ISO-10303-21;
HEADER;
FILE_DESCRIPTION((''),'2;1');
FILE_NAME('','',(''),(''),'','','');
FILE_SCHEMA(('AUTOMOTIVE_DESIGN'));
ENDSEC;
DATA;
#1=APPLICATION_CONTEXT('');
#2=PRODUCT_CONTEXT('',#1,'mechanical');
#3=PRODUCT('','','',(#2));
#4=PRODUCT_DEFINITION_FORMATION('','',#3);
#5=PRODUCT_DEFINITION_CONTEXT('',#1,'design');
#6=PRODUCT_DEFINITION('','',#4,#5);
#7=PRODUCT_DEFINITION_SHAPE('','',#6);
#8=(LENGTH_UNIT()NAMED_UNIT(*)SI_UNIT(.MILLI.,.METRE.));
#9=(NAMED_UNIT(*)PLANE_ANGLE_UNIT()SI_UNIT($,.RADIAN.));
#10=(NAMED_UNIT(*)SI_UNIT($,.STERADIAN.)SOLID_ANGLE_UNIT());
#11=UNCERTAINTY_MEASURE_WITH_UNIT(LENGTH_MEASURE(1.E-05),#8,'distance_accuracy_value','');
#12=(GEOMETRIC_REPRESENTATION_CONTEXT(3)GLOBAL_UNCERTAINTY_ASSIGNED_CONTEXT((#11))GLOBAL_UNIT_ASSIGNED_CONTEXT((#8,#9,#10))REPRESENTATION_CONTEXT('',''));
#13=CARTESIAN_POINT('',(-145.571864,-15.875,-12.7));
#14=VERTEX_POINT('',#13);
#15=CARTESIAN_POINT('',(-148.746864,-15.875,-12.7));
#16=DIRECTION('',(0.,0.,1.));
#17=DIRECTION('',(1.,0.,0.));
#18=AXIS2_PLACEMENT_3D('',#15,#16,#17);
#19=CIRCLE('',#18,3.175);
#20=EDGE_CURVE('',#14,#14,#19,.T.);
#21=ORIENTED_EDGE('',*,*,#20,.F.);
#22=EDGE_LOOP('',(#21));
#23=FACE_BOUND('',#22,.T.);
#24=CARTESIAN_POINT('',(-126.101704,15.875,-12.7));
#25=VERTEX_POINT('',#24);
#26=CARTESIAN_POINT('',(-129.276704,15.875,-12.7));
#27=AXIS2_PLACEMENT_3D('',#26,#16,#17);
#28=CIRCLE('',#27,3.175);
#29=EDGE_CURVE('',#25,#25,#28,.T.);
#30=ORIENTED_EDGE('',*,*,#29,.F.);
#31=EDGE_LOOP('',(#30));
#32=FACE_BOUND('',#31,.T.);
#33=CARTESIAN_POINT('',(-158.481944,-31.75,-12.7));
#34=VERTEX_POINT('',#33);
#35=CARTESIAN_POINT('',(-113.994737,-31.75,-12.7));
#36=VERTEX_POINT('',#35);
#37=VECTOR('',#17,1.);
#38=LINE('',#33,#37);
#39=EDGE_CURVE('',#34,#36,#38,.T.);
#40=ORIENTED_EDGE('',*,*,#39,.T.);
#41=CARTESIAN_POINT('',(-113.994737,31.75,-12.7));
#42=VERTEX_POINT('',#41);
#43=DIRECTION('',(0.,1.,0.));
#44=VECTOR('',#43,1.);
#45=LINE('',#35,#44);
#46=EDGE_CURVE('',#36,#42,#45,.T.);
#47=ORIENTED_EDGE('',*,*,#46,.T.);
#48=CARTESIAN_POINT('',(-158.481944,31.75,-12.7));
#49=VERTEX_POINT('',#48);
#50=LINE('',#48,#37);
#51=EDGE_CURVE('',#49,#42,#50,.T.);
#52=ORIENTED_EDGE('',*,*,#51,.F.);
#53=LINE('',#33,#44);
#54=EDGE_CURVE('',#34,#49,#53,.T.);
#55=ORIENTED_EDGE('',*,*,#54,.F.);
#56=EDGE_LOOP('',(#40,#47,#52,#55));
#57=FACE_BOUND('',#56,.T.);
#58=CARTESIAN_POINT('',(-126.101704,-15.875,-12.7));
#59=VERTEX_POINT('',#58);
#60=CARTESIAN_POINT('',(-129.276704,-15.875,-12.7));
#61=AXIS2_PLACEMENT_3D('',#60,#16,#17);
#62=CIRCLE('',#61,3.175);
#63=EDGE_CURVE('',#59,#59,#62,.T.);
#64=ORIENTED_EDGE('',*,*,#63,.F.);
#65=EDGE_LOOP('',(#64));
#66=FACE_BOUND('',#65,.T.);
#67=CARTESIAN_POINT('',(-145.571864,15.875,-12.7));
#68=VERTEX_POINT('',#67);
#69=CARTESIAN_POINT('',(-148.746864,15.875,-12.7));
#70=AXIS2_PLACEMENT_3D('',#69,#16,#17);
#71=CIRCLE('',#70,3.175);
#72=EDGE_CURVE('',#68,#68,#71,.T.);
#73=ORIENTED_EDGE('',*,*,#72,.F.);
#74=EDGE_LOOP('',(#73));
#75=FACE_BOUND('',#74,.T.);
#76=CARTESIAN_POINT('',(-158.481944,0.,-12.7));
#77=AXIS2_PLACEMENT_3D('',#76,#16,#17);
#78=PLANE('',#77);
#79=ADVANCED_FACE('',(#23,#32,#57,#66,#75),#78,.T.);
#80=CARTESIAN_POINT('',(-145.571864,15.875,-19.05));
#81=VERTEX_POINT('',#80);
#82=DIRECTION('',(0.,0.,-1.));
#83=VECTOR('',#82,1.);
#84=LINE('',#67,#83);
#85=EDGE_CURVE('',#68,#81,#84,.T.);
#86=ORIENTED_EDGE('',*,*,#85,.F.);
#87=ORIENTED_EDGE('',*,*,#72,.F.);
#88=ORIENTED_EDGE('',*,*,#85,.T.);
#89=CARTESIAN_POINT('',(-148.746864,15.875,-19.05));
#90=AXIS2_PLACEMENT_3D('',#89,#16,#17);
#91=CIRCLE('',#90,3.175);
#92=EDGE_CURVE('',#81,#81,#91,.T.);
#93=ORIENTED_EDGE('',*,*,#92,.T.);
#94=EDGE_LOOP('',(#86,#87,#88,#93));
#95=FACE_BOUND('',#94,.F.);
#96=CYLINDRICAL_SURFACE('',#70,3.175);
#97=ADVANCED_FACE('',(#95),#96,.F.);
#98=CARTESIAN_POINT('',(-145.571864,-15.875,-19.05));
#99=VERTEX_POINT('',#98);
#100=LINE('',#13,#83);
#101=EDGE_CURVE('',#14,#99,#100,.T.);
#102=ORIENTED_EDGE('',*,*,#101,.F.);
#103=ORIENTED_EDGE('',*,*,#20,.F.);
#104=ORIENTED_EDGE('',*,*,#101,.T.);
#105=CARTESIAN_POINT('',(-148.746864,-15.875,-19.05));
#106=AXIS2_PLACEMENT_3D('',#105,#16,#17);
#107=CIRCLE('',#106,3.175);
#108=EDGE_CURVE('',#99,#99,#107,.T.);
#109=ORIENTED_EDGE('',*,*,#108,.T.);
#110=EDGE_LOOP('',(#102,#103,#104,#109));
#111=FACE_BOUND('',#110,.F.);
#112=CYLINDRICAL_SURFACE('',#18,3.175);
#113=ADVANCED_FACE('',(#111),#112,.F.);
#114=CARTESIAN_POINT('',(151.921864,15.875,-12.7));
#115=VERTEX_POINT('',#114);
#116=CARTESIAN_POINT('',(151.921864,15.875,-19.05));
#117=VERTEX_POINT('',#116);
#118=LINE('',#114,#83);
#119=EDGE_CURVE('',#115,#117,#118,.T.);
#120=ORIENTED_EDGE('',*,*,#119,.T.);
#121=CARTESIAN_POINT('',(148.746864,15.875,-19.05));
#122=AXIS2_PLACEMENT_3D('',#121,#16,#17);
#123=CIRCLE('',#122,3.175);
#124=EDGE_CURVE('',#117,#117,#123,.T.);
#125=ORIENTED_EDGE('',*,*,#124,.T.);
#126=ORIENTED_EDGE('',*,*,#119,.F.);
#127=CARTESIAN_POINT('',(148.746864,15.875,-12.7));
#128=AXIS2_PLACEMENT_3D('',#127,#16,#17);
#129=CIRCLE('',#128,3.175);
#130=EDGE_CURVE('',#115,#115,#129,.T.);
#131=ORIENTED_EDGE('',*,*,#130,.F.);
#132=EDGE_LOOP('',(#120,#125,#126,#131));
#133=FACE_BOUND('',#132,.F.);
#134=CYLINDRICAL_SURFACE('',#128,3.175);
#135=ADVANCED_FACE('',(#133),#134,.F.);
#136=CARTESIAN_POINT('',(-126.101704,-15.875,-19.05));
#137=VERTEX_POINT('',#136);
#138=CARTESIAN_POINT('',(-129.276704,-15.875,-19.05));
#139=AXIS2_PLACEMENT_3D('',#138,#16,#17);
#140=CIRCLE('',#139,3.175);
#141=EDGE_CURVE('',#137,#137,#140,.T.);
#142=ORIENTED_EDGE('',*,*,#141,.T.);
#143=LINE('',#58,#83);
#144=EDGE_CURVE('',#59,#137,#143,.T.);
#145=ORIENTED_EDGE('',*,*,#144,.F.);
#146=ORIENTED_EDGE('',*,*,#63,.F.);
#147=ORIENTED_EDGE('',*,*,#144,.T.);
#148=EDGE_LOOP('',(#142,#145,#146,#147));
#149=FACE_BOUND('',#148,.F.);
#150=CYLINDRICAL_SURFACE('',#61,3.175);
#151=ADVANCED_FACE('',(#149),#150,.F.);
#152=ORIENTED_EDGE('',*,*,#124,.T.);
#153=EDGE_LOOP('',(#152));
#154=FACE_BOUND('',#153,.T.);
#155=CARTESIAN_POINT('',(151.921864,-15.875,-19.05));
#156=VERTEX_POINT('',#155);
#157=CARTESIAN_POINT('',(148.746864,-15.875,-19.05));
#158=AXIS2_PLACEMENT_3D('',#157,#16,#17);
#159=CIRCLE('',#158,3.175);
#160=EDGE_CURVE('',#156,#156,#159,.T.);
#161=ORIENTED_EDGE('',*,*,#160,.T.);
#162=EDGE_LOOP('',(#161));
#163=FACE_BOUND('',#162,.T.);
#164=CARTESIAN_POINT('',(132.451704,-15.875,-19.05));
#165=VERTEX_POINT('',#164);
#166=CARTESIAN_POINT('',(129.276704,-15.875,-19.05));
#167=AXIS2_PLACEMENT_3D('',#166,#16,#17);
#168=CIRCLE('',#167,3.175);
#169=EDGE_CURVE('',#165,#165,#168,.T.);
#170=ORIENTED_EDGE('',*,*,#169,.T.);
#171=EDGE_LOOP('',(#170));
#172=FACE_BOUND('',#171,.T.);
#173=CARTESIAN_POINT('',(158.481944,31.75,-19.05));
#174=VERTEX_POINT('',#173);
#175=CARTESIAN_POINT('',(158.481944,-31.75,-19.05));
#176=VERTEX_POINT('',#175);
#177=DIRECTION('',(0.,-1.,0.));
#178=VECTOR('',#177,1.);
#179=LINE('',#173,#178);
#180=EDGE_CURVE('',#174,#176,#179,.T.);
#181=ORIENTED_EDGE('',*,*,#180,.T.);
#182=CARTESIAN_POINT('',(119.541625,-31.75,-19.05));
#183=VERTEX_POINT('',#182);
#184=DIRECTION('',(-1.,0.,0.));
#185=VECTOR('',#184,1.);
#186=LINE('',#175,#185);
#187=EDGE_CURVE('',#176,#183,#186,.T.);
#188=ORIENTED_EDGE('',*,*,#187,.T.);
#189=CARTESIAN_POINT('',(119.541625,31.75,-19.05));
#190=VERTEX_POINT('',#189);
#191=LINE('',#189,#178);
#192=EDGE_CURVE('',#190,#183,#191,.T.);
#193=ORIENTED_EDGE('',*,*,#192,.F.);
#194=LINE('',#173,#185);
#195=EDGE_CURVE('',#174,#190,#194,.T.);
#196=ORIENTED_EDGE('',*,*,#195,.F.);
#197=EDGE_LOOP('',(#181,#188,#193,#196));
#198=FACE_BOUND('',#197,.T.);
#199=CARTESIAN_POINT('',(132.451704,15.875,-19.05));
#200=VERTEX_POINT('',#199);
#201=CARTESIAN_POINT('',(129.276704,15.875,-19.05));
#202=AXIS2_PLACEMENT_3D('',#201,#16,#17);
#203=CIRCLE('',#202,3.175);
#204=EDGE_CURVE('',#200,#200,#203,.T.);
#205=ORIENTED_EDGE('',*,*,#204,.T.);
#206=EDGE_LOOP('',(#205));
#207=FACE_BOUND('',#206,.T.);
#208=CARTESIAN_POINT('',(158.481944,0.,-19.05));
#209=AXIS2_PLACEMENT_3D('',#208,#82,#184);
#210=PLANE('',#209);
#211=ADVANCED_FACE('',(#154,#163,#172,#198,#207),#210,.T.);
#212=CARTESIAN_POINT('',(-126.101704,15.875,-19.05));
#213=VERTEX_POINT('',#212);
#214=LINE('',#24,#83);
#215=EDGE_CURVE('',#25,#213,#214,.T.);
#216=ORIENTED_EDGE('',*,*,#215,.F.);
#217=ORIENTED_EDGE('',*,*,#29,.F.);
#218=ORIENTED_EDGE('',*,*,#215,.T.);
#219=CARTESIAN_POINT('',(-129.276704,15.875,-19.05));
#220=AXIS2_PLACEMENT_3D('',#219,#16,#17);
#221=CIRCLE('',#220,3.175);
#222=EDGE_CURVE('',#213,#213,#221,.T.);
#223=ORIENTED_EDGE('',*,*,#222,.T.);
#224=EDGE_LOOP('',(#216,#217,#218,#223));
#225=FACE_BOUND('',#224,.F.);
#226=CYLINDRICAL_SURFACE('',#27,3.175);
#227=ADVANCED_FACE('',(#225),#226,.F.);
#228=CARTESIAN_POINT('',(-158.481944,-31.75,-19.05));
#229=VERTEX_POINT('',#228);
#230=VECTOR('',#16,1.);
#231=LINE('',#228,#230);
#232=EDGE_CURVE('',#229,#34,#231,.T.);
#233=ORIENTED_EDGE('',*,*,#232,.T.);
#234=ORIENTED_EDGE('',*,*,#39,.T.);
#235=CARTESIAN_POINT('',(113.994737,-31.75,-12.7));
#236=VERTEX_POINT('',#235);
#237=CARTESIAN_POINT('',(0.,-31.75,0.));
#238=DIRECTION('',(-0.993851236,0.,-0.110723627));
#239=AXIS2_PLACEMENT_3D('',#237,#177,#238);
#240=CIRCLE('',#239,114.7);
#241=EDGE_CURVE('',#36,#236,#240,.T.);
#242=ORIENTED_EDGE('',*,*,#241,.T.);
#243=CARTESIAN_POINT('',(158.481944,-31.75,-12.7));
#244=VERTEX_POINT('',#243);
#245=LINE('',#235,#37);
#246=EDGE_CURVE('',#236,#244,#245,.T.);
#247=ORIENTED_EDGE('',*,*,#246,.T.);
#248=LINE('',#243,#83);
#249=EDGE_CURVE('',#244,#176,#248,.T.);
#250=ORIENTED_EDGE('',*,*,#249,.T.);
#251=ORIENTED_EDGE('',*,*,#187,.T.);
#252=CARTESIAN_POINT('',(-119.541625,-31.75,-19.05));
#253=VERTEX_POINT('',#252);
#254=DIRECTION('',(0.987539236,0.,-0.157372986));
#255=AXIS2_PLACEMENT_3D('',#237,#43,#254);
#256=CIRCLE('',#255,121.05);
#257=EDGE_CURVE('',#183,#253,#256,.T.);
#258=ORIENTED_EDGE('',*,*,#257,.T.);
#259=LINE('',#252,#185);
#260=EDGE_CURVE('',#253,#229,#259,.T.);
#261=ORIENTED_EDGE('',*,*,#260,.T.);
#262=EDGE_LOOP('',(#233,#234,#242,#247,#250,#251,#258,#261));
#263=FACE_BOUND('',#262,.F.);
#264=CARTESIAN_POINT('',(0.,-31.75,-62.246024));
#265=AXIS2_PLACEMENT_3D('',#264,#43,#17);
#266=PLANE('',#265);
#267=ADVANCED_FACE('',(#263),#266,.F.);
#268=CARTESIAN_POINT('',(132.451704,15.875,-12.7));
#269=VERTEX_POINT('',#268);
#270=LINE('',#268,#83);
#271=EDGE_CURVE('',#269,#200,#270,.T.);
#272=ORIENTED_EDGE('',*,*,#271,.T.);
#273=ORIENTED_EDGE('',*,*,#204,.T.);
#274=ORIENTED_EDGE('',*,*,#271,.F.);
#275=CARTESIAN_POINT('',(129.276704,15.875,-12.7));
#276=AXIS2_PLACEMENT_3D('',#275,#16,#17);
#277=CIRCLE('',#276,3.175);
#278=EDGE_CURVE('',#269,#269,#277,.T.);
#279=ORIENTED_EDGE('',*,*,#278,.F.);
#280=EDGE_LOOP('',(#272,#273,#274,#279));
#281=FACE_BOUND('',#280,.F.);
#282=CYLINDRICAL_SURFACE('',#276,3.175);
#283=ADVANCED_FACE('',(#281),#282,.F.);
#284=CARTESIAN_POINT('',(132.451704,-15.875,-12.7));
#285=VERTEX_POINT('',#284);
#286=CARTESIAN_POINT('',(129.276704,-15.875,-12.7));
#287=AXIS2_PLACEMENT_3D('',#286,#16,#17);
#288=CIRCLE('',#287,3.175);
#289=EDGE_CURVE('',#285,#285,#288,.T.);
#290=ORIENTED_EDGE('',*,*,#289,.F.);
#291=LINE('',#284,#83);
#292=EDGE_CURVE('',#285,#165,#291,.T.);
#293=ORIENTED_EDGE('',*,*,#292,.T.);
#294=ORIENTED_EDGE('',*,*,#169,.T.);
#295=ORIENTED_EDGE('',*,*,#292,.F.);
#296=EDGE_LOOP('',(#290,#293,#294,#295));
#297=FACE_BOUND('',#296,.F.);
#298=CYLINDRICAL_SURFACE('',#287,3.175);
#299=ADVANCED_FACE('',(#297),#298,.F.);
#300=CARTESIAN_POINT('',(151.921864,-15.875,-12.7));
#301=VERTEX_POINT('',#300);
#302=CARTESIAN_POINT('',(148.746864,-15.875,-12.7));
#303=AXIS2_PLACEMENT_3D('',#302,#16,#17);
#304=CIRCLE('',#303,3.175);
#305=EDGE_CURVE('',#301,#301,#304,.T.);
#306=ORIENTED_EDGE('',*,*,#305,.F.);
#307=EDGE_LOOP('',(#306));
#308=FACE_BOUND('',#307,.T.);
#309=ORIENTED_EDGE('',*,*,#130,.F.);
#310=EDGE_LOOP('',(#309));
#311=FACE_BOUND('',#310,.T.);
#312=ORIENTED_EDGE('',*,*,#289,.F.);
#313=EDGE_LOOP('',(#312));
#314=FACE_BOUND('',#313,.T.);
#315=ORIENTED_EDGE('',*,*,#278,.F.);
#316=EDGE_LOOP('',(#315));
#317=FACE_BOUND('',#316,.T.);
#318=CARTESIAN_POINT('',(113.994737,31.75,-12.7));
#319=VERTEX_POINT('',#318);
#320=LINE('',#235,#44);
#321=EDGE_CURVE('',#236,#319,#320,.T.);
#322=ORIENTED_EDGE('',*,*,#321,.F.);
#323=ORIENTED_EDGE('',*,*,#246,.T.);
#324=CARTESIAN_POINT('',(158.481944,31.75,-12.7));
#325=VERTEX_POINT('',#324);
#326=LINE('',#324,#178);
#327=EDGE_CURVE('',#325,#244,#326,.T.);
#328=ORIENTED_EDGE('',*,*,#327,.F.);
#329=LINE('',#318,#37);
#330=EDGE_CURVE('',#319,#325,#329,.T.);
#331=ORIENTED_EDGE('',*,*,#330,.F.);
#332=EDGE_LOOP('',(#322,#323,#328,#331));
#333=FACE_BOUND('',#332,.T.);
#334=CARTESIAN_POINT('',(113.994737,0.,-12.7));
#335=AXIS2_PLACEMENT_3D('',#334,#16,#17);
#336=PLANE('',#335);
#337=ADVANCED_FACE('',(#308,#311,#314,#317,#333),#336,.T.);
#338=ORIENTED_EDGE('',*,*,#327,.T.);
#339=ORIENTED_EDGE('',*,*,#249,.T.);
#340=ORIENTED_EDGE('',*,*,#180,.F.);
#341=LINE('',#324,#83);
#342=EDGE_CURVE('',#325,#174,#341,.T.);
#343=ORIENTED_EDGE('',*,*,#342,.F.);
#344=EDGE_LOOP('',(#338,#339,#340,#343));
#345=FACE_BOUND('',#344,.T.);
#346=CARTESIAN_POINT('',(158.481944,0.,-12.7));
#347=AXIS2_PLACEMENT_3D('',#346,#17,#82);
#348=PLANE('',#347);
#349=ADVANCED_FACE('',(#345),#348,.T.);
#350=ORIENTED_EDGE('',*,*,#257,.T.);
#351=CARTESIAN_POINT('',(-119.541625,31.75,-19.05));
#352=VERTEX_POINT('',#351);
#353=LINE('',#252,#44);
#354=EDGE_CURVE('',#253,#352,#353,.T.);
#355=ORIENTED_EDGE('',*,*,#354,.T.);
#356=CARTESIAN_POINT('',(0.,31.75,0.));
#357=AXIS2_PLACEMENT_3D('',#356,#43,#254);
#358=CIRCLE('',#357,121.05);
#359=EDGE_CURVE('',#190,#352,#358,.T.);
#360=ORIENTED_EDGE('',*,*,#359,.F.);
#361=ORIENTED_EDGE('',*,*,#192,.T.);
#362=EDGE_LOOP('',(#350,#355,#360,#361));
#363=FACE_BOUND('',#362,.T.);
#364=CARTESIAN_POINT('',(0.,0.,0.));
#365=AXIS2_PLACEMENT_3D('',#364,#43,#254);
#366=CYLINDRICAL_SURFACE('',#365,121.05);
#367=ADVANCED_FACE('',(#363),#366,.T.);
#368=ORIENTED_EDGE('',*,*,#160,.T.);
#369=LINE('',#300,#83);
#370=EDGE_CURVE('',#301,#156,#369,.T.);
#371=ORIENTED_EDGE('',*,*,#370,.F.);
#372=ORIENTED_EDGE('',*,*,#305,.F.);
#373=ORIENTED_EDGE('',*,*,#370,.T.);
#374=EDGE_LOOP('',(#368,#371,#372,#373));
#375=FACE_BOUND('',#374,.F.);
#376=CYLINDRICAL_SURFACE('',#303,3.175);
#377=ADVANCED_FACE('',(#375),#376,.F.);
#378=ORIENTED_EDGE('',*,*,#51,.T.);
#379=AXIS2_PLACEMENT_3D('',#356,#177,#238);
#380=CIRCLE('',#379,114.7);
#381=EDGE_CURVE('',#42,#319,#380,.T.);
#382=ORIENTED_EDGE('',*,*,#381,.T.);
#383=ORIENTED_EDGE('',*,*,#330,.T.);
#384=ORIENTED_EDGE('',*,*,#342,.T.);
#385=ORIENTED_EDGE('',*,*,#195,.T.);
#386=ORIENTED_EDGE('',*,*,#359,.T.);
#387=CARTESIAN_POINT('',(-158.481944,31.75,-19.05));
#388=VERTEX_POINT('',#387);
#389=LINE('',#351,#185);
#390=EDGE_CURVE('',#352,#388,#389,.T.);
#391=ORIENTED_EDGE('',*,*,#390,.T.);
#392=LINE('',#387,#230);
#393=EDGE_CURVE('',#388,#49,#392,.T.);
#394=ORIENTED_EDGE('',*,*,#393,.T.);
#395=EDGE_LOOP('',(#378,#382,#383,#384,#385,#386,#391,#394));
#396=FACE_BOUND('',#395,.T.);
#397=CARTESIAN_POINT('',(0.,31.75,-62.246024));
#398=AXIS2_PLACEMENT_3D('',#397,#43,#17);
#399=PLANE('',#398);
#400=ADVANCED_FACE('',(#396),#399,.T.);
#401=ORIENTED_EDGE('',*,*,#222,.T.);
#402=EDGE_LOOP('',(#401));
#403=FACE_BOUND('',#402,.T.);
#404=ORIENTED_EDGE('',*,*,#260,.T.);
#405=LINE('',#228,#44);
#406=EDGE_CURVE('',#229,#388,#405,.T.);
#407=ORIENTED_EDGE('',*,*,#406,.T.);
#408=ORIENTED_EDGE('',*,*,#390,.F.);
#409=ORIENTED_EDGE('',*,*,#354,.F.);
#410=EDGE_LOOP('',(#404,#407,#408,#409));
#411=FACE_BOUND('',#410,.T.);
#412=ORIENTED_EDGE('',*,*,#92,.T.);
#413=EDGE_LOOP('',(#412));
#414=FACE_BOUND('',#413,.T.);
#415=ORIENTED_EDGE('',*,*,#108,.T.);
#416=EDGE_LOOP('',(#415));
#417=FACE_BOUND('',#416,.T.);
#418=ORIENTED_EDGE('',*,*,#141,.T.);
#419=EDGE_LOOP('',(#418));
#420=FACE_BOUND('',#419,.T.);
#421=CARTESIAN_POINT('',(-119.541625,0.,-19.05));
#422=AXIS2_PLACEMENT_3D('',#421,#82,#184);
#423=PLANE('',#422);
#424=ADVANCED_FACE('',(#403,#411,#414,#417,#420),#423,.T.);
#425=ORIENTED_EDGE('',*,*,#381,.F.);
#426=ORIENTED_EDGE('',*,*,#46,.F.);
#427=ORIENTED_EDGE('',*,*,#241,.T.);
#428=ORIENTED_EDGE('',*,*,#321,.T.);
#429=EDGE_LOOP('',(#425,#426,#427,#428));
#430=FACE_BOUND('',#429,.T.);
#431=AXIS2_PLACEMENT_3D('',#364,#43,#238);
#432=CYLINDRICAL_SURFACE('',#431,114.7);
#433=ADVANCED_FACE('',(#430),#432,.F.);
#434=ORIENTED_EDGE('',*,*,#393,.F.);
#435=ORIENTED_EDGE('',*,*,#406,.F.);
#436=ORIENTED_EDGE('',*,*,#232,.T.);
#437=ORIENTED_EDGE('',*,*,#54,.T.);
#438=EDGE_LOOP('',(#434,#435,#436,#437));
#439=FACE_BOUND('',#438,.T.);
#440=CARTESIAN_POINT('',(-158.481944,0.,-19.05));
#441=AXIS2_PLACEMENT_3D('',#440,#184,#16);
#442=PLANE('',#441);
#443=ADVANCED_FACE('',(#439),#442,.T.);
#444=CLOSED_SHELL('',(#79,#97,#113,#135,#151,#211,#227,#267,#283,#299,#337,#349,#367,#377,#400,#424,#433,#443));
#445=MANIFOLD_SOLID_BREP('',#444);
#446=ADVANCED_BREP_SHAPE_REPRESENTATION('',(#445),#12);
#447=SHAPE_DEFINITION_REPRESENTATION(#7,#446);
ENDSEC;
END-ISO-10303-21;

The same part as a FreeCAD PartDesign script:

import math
import FreeCAD as App
import Part
import Sketcher
Q = App.Units.Quantity

doc = App.newDocument("Part")
body = doc.addObject("PartDesign::Body", "Body")

sketch1 = body.newObject("Sketcher::SketchObject", "Sketch")
sketch1.AttachmentSupport = (doc.getObject("XZ_Plane"), [""])
sketch1.MapMode = "FlatFace"
sketch1.addGeometry(Part.ArcOfCircle(Part.Circle(App.Vector(0, 0, 0), App.Vector(0, 0, 1), 121), math.radians(-171), math.radians(-9)), False)
sketch1.addGeometry(Part.LineSegment(App.Vector(-120, -19, 0), App.Vector(-158, -19, 0)), False)
sketch1.addGeometry(Part.LineSegment(App.Vector(-158, -19, 0), App.Vector(-158, -13, 0)), False)
sketch1.addGeometry(Part.LineSegment(App.Vector(-158, -13, 0), App.Vector(-114, -13, 0)), False)
sketch1.addGeometry(Part.ArcOfCircle(Part.Circle(App.Vector(0, 0, 0), App.Vector(0, 0, 1), 115), math.radians(-174), math.radians(-6)), False)
sketch1.addGeometry(Part.LineSegment(App.Vector(114, -13, 0), App.Vector(158, -13, 0)), False)
sketch1.addGeometry(Part.LineSegment(App.Vector(158, -13, 0), App.Vector(158, -19, 0)), False)
sketch1.addGeometry(Part.LineSegment(App.Vector(158, -19, 0), App.Vector(120, -19, 0)), False)
sketch1.addConstraint(Sketcher.Constraint("Coincident", 0, 1, 1, 1))
sketch1.addConstraint(Sketcher.Constraint("Coincident", 1, 2, 2, 1))
sketch1.addConstraint(Sketcher.Constraint("Coincident", 2, 2, 3, 1))
sketch1.addConstraint(Sketcher.Constraint("Coincident", 3, 2, 4, 1))
sketch1.addConstraint(Sketcher.Constraint("Coincident", 4, 2, 5, 1))
sketch1.addConstraint(Sketcher.Constraint("Coincident", 5, 2, 6, 1))
sketch1.addConstraint(Sketcher.Constraint("Coincident", 6, 2, 7, 1))
sketch1.addConstraint(Sketcher.Constraint("Coincident", 7, 2, 0, 2))
sketch1.addConstraint(Sketcher.Constraint("Horizontal", 1))
sketch1.addConstraint(Sketcher.Constraint("Vertical", 2))
sketch1.addConstraint(Sketcher.Constraint("Horizontal", 3))
sketch1.addConstraint(Sketcher.Constraint("Horizontal", 5))
sketch1.addConstraint(Sketcher.Constraint("Vertical", 6))
sketch1.addConstraint(Sketcher.Constraint("Horizontal", 7))
sketch1.addConstraint(Sketcher.Constraint("Coincident", 0, 3, -1, 1))
sketch1.addConstraint(Sketcher.Constraint("Coincident", 4, 3, -1, 1))
sketch1.addConstraint(Sketcher.Constraint("Symmetric", 2, 2, 5, 2, -2))
sketch1.addConstraint(Sketcher.Constraint("Horizontal", 1, 2, 6, 2))
sketch1.addConstraint(Sketcher.Constraint("Radius", 4, Q("114.7 mm")))
sketch1.addConstraint(Sketcher.Constraint("Radius", 0, Q("121.05 mm")))
sketch1.addConstraint(Sketcher.Constraint("DistanceY", 2, 1, 2, 2, Q("6.35 mm")))
sketch1.addConstraint(Sketcher.Constraint("DistanceY", 2, 2, -1, 1, Q("12.7 mm")))
sketch1.addConstraint(Sketcher.Constraint("DistanceX", 1, 2, 1, 1, Q("38.94032 mm")))
pad1 = body.newObject("PartDesign::Pad", "Pad")
pad1.Profile = sketch1
pad1.Length = 63.5
pad1.Midplane = True

sketch2 = body.newObject("Sketcher::SketchObject", "Sketch001")
sketch2.AttachmentSupport = (doc.getObject("XY_Plane"), [""])
sketch2.MapMode = "FlatFace"
sketch2.AttachmentOffset = App.Placement(App.Vector(0, 0, -12.7), App.Rotation())
sketch2.addGeometry(Part.Circle(App.Vector(-129.3, 15.9, 0), App.Vector(0, 0, 1), 3.2), False)
sketch2.addGeometry(Part.Circle(App.Vector(-148.7, 15.9, 0), App.Vector(0, 0, 1), 3.2), False)
sketch2.addGeometry(Part.Circle(App.Vector(-148.7, -15.9, 0), App.Vector(0, 0, 1), 3.2), False)
sketch2.addGeometry(Part.Circle(App.Vector(-129.3, -15.9, 0), App.Vector(0, 0, 1), 3.2), False)
sketch2.addGeometry(Part.Circle(App.Vector(129.3, 15.9, 0), App.Vector(0, 0, 1), 3.2), False)
sketch2.addGeometry(Part.Circle(App.Vector(148.7, 15.9, 0), App.Vector(0, 0, 1), 3.2), False)
sketch2.addGeometry(Part.Circle(App.Vector(129.3, -15.9, 0), App.Vector(0, 0, 1), 3.2), False)
sketch2.addGeometry(Part.Circle(App.Vector(148.7, -15.9, 0), App.Vector(0, 0, 1), 3.2), False)
sketch2.addConstraint(Sketcher.Constraint("Equal", 0, 1))
sketch2.addConstraint(Sketcher.Constraint("Equal", 1, 2))
sketch2.addConstraint(Sketcher.Constraint("Equal", 2, 3))
sketch2.addConstraint(Sketcher.Constraint("Equal", 3, 4))
sketch2.addConstraint(Sketcher.Constraint("Equal", 4, 5))
sketch2.addConstraint(Sketcher.Constraint("Equal", 5, 6))
sketch2.addConstraint(Sketcher.Constraint("Equal", 6, 7))
sketch2.addConstraint(Sketcher.Constraint("Symmetric", 3, 3, 4, 3, -1, 1))
sketch2.addConstraint(Sketcher.Constraint("Symmetric", 2, 3, 5, 3, -1, 1))
sketch2.addConstraint(Sketcher.Constraint("Symmetric", 0, 3, 6, 3, -1, 1))
sketch2.addConstraint(Sketcher.Constraint("Symmetric", 1, 3, 7, 3, -1, 1))
sketch2.addConstraint(Sketcher.Constraint("Symmetric", 0, 3, 4, 3, -2))
sketch2.addConstraint(Sketcher.Constraint("Symmetric", 1, 3, 5, 3, -2))
sketch2.addConstraint(Sketcher.Constraint("Horizontal", 0, 3, 1, 3))
sketch2.addConstraint(Sketcher.Constraint("Diameter", 0, Q("6.35 mm")))
sketch2.addConstraint(Sketcher.Constraint("DistanceY", 2, 3, 1, 3, Q("31.75 mm")))
sketch2.addConstraint(Sketcher.Constraint("DistanceX", 1, 3, 0, 3, Q("19.47016 mm")))
sketch2.addConstraint(Sketcher.Constraint("DistanceX", 0, 3, 4, 3, Q("258.553409 mm")))
pocket1 = body.newObject("PartDesign::Pocket", "Pocket")
pocket1.Profile = sketch2
pocket1.Type = "ThroughAll"

doc.recompute()
